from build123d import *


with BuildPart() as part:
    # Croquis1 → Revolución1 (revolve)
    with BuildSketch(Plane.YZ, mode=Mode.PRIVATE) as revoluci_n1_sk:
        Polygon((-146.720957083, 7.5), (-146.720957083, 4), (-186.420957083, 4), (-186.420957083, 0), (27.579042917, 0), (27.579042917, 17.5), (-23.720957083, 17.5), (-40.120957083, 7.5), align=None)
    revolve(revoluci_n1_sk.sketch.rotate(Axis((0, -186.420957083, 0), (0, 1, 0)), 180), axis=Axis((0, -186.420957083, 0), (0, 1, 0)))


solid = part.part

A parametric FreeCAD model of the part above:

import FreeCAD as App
import Part
import Sketcher
Q = App.Units.Quantity


def add_polygon(sketch, points):
    """Adds a closed chain of lines whose ends are joined by coincident constraints."""
    first, n = sketch.GeometryCount, len(points)
    for a, b in zip(points, points[1:] + points[:1]):
        sketch.addGeometry(Part.LineSegment(App.Vector(*a, 0), App.Vector(*b, 0)), False)
    for i in range(n):
        sketch.addConstraint(Sketcher.Constraint("Coincident", first + i, 2, first + (i + 1) % n, 1))

doc = App.newDocument("Part")
body = doc.addObject("PartDesign::Body", "Body")

# Sketch on YZ plane
sketch1 = body.newObject("Sketcher::SketchObject", "Sketch")
sketch1.AttachmentSupport = (doc.getObject("YZ_Plane"), [""])
sketch1.MapMode = "FlatFace"
add_polygon(sketch1, [(-146.7, 7.5), (-146.7, 4), (-186.4, 4), (-186.4, 0), (27.6, 0), (27.6, 17.5), (-23.7, 17.5), (-40.1, 7.5)])  # lines 0-7
sketch1.addConstraint([
    Sketcher.Constraint("Vertical", 0),
    Sketcher.Constraint("Horizontal", 1),
    Sketcher.Constraint("Vertical", 2),
    Sketcher.Constraint("Horizontal", 3),
    Sketcher.Constraint("Vertical", 4),
    Sketcher.Constraint("Horizontal", 5),
    Sketcher.Constraint("Horizontal", 7),
    Sketcher.Constraint("PointOnObject", 2, 2, -1),
    Sketcher.Constraint("DistanceX", 3, 1, 3, 2, Q("214 mm")),
    Sketcher.Constraint("DistanceY", 2, 2, 2, 1, Q("4 mm")),
    Sketcher.Constraint("DistanceX", 1, 2, 1, 1, Q("39.7 mm")),
    Sketcher.Constraint("DistanceX", 5, 2, 5, 1, Q("51.3 mm")),
    Sketcher.Constraint("DistanceX", 7, 2, 7, 1, Q("106.6 mm")),
    Sketcher.Constraint("DistanceY", 0, 2, 0, 1, Q("3.5 mm")),
    Sketcher.Constraint("DistanceY", 4, 1, 4, 2, Q("17.5 mm")),
    Sketcher.Constraint("DistanceX", 0, 2, -1, 1, Q("146.720957 mm")),
])
revolution = body.newObject("PartDesign::Revolution", "Revolution")
revolution.Profile = sketch1
revolution.ReferenceAxis = (sketch1, ["H_Axis"])
revolution.Angle = 360

doc.recompute()
